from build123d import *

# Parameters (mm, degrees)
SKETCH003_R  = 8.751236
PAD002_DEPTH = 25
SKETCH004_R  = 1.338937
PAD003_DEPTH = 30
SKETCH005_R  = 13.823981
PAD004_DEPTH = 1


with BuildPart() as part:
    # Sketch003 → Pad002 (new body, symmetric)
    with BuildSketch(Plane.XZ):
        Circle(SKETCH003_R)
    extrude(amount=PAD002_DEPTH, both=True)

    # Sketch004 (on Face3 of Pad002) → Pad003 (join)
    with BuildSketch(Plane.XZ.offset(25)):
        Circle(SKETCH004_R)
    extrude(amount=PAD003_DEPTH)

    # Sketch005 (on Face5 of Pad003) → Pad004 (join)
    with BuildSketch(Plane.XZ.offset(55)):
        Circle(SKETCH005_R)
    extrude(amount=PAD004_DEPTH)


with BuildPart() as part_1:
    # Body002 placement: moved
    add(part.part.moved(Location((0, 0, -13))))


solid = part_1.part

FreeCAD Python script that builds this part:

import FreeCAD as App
import Part
import Sketcher

V = App.Vector
Q = App.Units.Quantity

doc = App.newDocument("Part")
params = doc.addObject("Spreadsheet::Sheet", "Params")
for row, (alias, value) in enumerate([
    ("pad1_length", "50 mm"),
    ("pad2_length", "30 mm"),
    ("pad3_length", "1 mm"),
], start=1):
    params.set(f"A{row}", alias)
    params.set(f"B{row}", "=" + value)
    params.setAlias(f"B{row}", alias)

body = doc.addObject("PartDesign::Body", "Body")

# Sketch on XZ plane
sketch1 = body.newObject("Sketcher::SketchObject", "Sketch")
sketch1.AttachmentSupport = (doc.getObject("XZ_Plane"), [""])
sketch1.MapMode = "FlatFace"
sketch1.addGeometry(Part.Circle(V(0, 0, 0), V(0, 0, 1), 9), False)
sketch1.addConstraint([
    Sketcher.Constraint("Coincident", 0, 3, -1, 1),
    Sketcher.Constraint("Diameter", 0, Q("17.502472 mm")),
])
pad1 = body.newObject("PartDesign::Pad", "Pad")
pad1.Profile = sketch1
pad1.setExpression("Length", "Params.pad1_length")
pad1.Midplane = True

# Sketch on XZ plane
sketch2 = body.newObject("Sketcher::SketchObject", "Sketch001")
sketch2.AttachmentSupport = (doc.getObject("XZ_Plane"), [""])
sketch2.MapMode = "FlatFace"
sketch2.AttachmentOffset = App.Placement(V(0, 0, 25), App.Rotation())
sketch2.addGeometry(Part.Circle(V(0, 0, 0), V(0, 0, 1), 1.3), False)
sketch2.addConstraint([
    Sketcher.Constraint("Coincident", 0, 3, -1, 1),
    Sketcher.Constraint("Diameter", 0, Q("2.677874 mm")),
])
pad2 = body.newObject("PartDesign::Pad", "Pad001")
pad2.Profile = sketch2
pad2.setExpression("Length", "Params.pad2_length")

# Sketch on XZ plane
sketch3 = body.newObject("Sketcher::SketchObject", "Sketch002")
sketch3.AttachmentSupport = (doc.getObject("XZ_Plane"), [""])
sketch3.MapMode = "FlatFace"
sketch3.AttachmentOffset = App.Placement(V(0, 0, 55), App.Rotation())
sketch3.addGeometry(Part.Circle(V(0, 0, 0), V(0, 0, 1), 14), False)
sketch3.addConstraint([
    Sketcher.Constraint("Coincident", 0, 3, -1, 1),
    Sketcher.Constraint("Diameter", 0, Q("27.647962 mm")),
])
pad3 = body.newObject("PartDesign::Pad", "Pad002")
pad3.Profile = sketch3
pad3.setExpression("Length", "Params.pad3_length")
body2 = doc.addObject("PartDesign::Body", "Body001")
doc.recompute()

body.Placement = App.Placement(V(0, 0, -13), App.Rotation(V(0, 0, 1), 0))
boolean = body2.newObject("PartDesign::Boolean", "Boolean")
boolean.Type = "Fuse"
boolean.addObjects([body])

doc.recompute()
